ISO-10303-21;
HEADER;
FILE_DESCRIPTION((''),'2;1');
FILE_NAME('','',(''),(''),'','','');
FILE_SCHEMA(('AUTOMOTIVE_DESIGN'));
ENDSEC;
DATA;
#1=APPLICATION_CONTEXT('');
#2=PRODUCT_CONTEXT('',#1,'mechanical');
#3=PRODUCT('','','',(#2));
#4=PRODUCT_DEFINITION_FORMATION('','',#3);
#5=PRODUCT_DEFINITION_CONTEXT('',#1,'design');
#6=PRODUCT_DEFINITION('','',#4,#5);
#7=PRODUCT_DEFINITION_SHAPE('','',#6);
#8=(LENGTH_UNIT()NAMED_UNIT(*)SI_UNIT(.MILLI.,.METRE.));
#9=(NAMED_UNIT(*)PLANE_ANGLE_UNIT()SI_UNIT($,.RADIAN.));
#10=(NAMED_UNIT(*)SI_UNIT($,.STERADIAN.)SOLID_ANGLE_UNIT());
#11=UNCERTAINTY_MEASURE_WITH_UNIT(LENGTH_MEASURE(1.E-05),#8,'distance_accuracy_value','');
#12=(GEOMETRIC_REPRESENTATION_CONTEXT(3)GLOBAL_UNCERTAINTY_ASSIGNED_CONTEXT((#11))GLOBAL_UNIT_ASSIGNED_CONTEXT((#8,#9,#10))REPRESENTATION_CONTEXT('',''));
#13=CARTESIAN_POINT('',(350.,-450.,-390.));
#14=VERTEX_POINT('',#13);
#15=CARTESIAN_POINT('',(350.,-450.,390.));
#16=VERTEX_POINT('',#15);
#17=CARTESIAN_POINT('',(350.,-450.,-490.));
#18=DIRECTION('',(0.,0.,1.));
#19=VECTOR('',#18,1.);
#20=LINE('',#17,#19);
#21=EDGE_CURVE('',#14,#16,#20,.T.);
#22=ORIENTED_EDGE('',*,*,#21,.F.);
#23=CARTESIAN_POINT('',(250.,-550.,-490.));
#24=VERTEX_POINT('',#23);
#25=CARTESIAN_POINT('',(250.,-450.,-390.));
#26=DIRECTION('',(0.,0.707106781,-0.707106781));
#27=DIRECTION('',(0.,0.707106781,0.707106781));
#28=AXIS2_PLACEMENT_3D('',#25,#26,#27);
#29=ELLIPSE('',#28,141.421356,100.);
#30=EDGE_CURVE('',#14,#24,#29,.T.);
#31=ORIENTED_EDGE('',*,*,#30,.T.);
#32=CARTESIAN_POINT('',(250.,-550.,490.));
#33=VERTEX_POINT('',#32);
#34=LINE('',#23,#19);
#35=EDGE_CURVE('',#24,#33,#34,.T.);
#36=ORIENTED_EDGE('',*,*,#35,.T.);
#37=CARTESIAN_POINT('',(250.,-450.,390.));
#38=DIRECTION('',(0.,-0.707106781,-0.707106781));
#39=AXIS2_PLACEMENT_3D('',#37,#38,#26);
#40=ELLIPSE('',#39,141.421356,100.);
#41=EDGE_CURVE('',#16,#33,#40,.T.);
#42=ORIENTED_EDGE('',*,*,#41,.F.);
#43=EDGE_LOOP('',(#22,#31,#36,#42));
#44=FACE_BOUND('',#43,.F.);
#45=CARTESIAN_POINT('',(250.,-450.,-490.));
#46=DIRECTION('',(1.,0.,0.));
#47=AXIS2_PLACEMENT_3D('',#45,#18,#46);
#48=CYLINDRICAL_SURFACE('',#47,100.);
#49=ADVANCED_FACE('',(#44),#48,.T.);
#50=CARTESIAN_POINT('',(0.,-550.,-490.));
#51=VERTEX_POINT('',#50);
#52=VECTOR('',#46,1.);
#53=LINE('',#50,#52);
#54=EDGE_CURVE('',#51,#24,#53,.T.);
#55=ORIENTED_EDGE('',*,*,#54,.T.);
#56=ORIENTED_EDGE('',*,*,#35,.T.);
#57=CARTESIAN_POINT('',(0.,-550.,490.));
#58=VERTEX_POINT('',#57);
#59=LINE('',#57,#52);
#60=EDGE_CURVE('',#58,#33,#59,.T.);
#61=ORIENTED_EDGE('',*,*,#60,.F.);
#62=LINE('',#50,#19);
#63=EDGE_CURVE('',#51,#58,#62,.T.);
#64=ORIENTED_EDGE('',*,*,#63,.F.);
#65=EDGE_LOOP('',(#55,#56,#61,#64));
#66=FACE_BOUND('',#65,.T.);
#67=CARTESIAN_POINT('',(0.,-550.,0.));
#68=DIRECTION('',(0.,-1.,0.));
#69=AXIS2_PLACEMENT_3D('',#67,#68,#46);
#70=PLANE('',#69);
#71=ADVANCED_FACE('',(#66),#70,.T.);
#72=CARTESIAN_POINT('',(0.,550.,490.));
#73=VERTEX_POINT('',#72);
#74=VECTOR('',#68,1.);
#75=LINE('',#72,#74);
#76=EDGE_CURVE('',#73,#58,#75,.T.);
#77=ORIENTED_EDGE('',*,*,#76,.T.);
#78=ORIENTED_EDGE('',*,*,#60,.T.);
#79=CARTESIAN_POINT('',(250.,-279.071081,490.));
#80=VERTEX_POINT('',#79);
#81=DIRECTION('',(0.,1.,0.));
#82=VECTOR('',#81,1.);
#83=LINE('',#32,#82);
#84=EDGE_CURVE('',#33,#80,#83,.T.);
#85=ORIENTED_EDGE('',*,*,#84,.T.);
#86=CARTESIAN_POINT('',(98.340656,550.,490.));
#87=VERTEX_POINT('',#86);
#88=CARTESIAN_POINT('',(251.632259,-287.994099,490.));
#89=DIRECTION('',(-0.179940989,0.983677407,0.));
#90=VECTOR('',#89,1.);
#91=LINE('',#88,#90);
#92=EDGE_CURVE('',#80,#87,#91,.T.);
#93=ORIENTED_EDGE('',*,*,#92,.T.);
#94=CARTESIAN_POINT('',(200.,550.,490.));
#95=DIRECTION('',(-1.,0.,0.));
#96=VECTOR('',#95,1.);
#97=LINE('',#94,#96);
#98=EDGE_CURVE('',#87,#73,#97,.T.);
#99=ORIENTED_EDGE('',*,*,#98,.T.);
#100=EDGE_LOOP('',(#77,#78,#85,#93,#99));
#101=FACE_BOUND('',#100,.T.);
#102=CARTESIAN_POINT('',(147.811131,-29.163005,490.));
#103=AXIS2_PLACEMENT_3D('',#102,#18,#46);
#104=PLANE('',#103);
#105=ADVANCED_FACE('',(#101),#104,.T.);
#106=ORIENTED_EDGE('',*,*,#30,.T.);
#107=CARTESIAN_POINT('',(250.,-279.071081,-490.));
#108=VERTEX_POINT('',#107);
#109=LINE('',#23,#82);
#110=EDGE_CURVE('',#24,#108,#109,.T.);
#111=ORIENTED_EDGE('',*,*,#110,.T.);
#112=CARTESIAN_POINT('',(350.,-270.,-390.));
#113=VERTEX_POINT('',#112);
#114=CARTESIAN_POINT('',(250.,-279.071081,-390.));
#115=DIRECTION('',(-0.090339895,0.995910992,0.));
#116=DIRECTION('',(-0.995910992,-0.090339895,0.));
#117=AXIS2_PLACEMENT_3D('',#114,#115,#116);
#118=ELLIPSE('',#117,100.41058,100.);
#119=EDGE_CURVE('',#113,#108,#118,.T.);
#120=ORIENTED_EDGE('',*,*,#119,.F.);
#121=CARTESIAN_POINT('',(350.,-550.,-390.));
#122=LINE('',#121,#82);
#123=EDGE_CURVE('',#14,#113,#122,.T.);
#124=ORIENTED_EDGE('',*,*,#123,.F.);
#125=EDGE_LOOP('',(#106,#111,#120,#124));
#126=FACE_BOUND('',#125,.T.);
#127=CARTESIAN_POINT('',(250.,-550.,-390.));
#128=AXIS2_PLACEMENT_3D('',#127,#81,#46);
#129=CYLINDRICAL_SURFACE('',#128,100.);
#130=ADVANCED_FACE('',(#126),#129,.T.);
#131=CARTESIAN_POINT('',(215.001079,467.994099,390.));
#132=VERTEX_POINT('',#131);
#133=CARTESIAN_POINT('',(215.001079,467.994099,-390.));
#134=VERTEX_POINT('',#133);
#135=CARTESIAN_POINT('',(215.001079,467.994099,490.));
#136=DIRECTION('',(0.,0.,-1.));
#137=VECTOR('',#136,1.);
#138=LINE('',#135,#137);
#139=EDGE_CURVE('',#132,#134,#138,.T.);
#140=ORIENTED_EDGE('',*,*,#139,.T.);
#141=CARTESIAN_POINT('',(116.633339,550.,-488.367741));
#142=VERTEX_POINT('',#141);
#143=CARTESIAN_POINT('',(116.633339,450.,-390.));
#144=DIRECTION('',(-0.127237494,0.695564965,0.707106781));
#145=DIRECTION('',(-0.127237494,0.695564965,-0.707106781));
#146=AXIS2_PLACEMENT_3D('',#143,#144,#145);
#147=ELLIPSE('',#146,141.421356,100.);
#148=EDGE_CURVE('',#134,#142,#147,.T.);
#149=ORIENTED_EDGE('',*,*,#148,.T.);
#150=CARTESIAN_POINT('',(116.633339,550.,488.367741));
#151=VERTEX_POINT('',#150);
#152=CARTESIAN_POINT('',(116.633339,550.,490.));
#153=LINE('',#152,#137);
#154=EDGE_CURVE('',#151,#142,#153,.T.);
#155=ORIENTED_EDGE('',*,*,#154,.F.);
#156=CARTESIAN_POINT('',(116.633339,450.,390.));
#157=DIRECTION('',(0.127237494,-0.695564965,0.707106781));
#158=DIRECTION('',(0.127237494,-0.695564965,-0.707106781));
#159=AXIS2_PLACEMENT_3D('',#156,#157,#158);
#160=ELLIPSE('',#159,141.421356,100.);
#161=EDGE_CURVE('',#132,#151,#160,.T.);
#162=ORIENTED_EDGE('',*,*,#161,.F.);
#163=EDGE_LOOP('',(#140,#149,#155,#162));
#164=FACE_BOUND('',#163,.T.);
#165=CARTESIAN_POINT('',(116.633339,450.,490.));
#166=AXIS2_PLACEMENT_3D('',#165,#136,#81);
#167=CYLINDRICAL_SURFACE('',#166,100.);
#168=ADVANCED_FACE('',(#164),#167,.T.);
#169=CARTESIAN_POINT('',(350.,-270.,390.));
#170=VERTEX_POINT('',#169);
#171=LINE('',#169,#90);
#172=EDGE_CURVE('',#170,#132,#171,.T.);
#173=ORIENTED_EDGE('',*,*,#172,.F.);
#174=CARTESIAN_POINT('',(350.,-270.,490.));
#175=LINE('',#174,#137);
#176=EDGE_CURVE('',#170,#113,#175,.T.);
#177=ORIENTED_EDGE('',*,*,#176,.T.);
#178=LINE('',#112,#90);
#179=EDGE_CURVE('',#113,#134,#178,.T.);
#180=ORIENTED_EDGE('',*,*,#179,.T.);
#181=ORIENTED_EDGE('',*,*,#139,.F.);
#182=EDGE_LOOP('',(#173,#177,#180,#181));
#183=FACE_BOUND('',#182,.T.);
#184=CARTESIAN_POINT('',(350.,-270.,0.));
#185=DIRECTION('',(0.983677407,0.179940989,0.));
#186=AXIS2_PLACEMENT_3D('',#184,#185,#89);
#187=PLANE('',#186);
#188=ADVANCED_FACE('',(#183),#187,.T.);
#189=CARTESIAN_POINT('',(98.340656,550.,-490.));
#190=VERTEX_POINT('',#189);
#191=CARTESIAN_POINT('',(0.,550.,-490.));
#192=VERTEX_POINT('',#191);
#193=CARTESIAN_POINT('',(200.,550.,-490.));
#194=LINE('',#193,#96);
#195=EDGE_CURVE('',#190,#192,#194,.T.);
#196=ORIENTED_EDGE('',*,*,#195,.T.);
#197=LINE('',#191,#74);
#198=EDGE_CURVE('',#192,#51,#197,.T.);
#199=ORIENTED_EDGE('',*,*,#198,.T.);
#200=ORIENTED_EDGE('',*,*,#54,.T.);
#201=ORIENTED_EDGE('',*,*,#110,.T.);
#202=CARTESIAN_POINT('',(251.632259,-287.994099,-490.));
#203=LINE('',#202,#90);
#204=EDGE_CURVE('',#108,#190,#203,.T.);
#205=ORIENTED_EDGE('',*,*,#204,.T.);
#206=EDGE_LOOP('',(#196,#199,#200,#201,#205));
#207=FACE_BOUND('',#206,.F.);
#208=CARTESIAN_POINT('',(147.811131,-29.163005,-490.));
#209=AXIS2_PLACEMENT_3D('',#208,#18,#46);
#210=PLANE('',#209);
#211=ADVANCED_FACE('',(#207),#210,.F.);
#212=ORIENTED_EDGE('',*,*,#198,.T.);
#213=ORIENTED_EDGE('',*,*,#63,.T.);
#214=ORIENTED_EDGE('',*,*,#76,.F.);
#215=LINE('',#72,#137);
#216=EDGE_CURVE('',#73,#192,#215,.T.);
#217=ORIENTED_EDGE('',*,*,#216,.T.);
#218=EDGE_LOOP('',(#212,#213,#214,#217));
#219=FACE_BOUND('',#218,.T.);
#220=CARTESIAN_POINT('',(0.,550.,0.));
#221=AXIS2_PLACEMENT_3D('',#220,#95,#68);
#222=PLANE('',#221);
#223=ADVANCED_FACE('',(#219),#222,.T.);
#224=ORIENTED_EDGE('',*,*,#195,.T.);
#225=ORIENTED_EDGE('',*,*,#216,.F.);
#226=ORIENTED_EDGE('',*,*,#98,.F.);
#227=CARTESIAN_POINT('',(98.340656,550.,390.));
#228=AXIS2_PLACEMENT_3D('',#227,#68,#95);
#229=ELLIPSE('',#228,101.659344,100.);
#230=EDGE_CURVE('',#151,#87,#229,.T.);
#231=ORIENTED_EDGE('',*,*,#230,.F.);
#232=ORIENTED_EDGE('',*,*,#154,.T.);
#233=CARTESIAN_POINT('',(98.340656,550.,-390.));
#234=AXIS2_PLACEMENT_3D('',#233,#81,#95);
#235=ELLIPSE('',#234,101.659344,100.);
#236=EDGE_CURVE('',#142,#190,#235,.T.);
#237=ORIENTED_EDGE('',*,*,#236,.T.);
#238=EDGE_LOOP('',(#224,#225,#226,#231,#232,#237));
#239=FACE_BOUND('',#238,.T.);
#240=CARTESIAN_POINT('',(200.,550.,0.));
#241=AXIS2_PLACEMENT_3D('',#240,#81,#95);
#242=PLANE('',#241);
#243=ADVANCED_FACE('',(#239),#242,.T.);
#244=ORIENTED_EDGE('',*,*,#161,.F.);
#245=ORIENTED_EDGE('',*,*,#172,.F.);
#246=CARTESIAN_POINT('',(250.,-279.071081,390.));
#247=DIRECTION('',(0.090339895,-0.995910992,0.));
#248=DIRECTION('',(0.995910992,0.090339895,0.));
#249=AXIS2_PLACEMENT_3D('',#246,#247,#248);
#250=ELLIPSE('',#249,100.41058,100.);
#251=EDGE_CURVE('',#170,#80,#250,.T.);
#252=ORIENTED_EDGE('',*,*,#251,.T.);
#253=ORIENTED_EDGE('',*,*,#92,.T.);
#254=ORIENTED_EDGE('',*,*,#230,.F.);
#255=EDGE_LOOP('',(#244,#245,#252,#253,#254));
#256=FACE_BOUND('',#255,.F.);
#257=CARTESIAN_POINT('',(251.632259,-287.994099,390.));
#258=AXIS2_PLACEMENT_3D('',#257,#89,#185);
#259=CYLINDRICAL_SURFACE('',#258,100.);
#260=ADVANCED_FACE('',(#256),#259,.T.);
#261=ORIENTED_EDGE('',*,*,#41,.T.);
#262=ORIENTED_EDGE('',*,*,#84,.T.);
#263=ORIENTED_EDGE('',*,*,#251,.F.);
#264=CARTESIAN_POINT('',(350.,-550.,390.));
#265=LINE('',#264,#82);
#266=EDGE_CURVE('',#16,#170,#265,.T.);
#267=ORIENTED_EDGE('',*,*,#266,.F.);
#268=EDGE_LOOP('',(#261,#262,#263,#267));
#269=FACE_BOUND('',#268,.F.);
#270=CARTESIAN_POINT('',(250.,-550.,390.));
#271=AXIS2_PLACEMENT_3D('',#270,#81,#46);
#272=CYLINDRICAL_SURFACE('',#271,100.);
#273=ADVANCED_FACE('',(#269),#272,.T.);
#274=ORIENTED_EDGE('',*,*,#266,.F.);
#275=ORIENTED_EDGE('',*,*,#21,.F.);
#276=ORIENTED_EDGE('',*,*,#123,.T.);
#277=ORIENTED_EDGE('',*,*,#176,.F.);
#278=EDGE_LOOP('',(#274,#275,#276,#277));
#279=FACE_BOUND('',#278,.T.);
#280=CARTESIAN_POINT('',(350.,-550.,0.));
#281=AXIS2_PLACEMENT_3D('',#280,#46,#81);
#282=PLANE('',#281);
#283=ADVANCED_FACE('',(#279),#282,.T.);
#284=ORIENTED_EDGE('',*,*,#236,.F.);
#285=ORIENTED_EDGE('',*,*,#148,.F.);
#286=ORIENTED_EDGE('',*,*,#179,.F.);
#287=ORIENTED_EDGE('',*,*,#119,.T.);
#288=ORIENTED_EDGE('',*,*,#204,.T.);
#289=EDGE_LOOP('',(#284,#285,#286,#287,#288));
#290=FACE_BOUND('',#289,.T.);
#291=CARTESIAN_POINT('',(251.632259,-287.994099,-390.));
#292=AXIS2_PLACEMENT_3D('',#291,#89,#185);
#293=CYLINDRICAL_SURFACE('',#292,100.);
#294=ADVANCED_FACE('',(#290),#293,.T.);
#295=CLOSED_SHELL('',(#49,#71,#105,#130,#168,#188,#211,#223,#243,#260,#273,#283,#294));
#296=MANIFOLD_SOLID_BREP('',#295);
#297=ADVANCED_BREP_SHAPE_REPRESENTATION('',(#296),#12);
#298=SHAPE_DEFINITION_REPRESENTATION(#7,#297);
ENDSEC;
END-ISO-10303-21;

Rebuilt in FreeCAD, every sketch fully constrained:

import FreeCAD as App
import Part
import Sketcher
from FreeCAD import Vector


def edges_at(feature, points):
    """Names of the edges that pass closest to the given points."""
    edges = feature.Shape.Edges
    near = lambda p: min(range(len(edges)), key=lambda i: edges[i].distToShape(Part.Vertex(*p))[0])
    return sorted({f"Edge{near(p) + 1}" for p in points})

doc = App.newDocument("Part")
body = doc.addObject("PartDesign::Body", "Body")

sketch1 = body.newObject("Sketcher::SketchObject", "Sketch")
sketch1.AttachmentSupport = (doc.getObject("XY_Plane"), [""])
sketch1.MapMode = "FlatFace"
sketch1.addGeometry(Part.LineSegment(Vector(0, 550, 0), Vector(0, -550, 0)), False)
sketch1.addGeometry(Part.LineSegment(Vector(0, -550, 0), Vector(350, -550, 0)), False)
sketch1.addGeometry(Part.LineSegment(Vector(350, -550, 0), Vector(350, -270, 0)), False)
sketch1.addGeometry(Part.LineSegment(Vector(350, -270, 0), Vector(200, 550, 0)), False)
sketch1.addGeometry(Part.LineSegment(Vector(200, 550, 0), Vector(0, 550, 0)), False)
sketch1.addConstraint(Sketcher.Constraint("Coincident", 0, 2, 1, 1))
sketch1.addConstraint(Sketcher.Constraint("Coincident", 1, 2, 2, 1))
sketch1.addConstraint(Sketcher.Constraint("Coincident", 2, 2, 3, 1))
sketch1.addConstraint(Sketcher.Constraint("Coincident", 3, 2, 4, 1))
sketch1.addConstraint(Sketcher.Constraint("Coincident", 4, 2, 0, 1))
sketch1.addConstraint(Sketcher.Constraint("Vertical", 0))
sketch1.addConstraint(Sketcher.Constraint("Horizontal", 1))
sketch1.addConstraint(Sketcher.Constraint("Vertical", 2))
sketch1.addConstraint(Sketcher.Constraint("Horizontal", 4))
sketch1.addConstraint(Sketcher.Constraint("Symmetric", 0, 2, 4, 2, -1, 1))
sketch1.addConstraint(Sketcher.Constraint("DistanceX", 1, 1, 1, 2, 350.0))
sketch1.addConstraint(Sketcher.Constraint("DistanceX", 4, 2, 4, 1, 200.0))
sketch1.addConstraint(Sketcher.Constraint("DistanceY", 0, 2, 0, 1, 1100.0))
sketch1.addConstraint(Sketcher.Constraint("DistanceY", 2, 1, 2, 2, 280.0))
pad1 = body.newObject("PartDesign::Pad", "Pad")
pad1.Profile = sketch1
pad1.Length = 980
pad1.Midplane = True
doc.recompute()

fillet = body.newObject("PartDesign::Fillet", "Fillet")
fillet.Base = (pad1, edges_at(pad1, [
    (350, -410, 490),
    (275, 140, 490),
    (275, 140, -490),
    (350, -410, -490),
    (200, 550, 0),
    (350, -550, 0),
]))
fillet.Radius = 100

doc.recompute()
